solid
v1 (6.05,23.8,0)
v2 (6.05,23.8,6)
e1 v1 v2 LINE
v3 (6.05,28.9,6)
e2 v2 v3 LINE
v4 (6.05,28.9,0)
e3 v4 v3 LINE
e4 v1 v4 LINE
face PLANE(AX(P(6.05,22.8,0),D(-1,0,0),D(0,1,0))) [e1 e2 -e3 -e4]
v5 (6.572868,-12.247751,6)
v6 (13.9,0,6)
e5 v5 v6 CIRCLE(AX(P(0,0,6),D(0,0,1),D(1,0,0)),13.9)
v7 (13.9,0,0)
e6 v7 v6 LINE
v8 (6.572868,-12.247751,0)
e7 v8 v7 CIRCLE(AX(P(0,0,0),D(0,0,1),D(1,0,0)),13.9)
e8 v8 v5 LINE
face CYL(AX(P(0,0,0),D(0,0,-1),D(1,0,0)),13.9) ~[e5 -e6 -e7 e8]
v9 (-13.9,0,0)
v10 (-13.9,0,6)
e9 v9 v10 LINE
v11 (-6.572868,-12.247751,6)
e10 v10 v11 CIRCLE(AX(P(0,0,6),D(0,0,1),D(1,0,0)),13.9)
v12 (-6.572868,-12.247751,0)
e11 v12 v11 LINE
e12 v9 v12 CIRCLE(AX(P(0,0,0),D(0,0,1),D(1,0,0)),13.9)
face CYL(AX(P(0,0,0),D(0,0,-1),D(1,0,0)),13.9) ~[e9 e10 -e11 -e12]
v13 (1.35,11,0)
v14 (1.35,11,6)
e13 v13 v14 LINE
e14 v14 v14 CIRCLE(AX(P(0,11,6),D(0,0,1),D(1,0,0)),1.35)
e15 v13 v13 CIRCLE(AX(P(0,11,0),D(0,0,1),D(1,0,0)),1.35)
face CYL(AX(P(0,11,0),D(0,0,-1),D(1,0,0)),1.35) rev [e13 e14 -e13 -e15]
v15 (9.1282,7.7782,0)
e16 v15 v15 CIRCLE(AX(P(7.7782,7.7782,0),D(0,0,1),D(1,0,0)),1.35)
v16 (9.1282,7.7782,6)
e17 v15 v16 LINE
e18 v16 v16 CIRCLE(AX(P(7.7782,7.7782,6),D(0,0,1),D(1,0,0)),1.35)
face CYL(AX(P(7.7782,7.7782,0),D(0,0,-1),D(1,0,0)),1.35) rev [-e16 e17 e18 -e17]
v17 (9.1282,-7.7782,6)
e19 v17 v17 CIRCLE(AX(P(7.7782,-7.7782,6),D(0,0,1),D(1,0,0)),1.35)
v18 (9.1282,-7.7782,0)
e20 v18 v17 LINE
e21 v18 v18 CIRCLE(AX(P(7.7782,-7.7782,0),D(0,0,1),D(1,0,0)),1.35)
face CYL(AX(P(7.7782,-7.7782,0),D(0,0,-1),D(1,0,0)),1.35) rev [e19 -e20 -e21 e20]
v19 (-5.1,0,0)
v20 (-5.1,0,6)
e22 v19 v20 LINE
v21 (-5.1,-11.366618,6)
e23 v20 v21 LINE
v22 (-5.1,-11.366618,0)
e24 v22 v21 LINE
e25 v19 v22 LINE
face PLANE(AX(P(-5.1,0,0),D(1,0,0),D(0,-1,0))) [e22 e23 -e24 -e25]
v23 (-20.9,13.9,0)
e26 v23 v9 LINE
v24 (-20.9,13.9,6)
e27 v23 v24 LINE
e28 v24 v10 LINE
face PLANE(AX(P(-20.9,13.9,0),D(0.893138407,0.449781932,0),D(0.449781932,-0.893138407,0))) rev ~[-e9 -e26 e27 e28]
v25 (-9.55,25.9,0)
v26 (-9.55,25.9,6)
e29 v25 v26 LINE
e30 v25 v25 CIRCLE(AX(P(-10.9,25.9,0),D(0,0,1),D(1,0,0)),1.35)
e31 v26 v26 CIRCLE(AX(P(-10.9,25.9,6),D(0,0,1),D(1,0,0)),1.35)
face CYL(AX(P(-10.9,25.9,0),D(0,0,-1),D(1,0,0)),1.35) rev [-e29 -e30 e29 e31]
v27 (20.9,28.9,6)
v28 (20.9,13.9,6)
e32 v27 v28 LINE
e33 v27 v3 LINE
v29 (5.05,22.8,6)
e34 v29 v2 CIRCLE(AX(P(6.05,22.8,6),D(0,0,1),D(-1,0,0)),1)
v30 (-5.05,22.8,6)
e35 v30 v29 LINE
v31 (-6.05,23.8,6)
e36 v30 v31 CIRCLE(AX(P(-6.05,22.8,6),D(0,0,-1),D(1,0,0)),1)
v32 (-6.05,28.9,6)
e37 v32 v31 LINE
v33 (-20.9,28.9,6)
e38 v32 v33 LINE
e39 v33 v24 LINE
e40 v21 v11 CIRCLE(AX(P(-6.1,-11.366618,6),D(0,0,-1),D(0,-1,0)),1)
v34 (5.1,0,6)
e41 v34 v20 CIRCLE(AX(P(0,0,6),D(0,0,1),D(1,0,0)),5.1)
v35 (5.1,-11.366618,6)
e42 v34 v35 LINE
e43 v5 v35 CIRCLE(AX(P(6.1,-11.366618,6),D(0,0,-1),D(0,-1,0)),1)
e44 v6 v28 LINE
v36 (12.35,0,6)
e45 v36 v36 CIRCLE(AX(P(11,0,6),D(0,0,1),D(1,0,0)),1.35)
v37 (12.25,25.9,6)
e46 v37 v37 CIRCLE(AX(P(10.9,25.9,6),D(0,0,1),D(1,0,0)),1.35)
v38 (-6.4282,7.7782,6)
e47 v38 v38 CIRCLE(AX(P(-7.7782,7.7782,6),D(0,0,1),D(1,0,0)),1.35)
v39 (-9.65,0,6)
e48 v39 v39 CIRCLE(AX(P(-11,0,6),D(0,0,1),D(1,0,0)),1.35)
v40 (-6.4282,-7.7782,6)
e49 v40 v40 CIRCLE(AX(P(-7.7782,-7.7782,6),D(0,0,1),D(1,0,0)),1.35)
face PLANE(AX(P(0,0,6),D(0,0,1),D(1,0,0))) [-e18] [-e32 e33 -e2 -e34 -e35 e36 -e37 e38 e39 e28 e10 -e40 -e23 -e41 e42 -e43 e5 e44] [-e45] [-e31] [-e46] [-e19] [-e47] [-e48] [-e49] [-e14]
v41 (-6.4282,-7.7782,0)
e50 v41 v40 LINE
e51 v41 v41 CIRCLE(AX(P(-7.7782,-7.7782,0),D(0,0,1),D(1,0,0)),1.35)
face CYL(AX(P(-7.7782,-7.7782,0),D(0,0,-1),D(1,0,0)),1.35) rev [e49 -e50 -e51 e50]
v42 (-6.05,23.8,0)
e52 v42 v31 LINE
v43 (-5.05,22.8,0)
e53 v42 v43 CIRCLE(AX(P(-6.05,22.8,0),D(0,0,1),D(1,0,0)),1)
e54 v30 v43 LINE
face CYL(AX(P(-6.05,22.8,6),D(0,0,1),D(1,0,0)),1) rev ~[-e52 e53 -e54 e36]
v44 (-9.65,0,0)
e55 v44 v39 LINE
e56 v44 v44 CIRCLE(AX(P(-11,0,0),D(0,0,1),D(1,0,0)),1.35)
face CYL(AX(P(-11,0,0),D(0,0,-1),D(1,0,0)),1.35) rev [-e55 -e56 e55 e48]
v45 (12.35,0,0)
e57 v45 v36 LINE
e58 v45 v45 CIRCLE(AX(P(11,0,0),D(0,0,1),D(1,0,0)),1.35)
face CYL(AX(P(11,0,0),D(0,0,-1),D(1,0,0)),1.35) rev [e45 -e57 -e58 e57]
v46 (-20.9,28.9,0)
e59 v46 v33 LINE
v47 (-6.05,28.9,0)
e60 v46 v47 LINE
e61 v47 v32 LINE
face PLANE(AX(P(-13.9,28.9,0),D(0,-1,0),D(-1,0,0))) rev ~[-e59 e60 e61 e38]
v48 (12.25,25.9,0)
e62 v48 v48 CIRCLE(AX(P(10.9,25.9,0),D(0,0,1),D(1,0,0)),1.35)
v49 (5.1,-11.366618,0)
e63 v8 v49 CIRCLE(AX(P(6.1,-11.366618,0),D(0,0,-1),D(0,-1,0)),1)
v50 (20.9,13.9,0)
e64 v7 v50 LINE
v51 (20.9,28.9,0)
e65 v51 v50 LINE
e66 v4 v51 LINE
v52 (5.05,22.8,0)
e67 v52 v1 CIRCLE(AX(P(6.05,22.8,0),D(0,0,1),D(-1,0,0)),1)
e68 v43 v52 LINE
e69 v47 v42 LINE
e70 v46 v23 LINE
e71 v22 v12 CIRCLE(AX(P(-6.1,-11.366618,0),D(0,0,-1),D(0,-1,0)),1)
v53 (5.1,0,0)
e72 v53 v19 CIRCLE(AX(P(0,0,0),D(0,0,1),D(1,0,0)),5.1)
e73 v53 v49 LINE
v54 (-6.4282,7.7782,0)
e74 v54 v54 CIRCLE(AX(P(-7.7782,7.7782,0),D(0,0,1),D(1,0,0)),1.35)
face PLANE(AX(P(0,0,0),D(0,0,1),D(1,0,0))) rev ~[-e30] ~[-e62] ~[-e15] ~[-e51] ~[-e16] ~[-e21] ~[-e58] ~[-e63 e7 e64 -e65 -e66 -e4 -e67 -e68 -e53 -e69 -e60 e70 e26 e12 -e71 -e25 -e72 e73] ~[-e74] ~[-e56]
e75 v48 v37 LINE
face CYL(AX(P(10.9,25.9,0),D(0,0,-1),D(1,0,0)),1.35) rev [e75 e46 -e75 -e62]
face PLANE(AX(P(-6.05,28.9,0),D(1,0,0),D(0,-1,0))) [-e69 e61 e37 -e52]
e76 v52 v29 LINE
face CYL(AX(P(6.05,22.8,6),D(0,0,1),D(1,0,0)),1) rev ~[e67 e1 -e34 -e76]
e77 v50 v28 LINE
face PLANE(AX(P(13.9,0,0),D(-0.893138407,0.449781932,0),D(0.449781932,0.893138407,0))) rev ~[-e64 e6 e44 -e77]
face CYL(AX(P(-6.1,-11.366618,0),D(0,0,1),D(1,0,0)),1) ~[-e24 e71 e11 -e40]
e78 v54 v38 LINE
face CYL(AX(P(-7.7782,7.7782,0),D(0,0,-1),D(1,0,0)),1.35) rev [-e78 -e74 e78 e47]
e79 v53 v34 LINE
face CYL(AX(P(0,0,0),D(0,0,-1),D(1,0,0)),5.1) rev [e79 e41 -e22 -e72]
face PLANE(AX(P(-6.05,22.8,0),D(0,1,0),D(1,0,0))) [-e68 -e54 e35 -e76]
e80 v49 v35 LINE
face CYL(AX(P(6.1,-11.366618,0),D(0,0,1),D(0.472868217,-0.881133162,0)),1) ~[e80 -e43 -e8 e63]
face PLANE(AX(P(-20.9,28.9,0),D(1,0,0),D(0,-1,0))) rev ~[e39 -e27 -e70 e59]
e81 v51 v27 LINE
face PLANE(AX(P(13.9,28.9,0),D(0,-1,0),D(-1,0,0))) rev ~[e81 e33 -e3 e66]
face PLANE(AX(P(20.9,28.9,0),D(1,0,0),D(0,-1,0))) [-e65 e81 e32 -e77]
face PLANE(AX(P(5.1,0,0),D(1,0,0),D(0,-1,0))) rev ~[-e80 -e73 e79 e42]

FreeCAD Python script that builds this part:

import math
import FreeCAD as App
import Part
import Sketcher
Q = App.Units.Quantity


def edges_at(feature, points):
    """Names of the edges that pass closest to the given points."""
    edges = feature.Shape.Edges
    near = lambda p: min(range(len(edges)), key=lambda i: edges[i].distToShape(Part.Vertex(*p))[0])
    return sorted({f"Edge{near(p) + 1}" for p in points})

doc = App.newDocument("Part")
body = doc.addObject("PartDesign::Body", "Body")

# Sketch on XY plane
sketch1 = body.newObject("Sketcher::SketchObject", "Sketch")
sketch1.AttachmentSupport = (doc.getObject("XY_Plane"), [""])
sketch1.MapMode = "FlatFace"
sketch1.addGeometry([
    Part.ArcOfCircle(Part.Circle(App.Vector(0, 0, 0), App.Vector(0, 0, 1), 13.9), math.radians(-68), math.radians(0)),  # 0
    Part.LineSegment(App.Vector(13.9, 0, 0), App.Vector(20.9, 13.9, 0)),  # 1
    Part.LineSegment(App.Vector(20.9, 13.9, 0), App.Vector(20.9, 28.9, 0)),  # 2
    Part.LineSegment(App.Vector(20.9, 28.9, 0), App.Vector(6, 28.9, 0)),  # 3
    Part.LineSegment(App.Vector(6, 28.9, 0), App.Vector(6, 22.8, 0)),  # 4
    Part.LineSegment(App.Vector(6, 22.8, 0), App.Vector(-6, 22.8, 0)),  # 5
    Part.LineSegment(App.Vector(-6, 22.8, 0), App.Vector(-6, 28.9, 0)),  # 6
    Part.LineSegment(App.Vector(-6, 28.9, 0), App.Vector(-20.9, 28.9, 0)),  # 7
    Part.LineSegment(App.Vector(-20.9, 28.9, 0), App.Vector(-20.9, 13.9, 0)),  # 8
    Part.LineSegment(App.Vector(-20.9, 13.9, 0), App.Vector(-13.9, 0, 0)),  # 9
    Part.ArcOfCircle(Part.Circle(App.Vector(0, 0, 0), App.Vector(0, 0, 1), 13.9), math.radians(180), math.radians(248)),  # 10
    Part.LineSegment(App.Vector(-5.1, -12.9, 0), App.Vector(-5.1, 0, 0)),  # 11
    Part.ArcOfCircle(Part.Circle(App.Vector(0, 0, 0), App.Vector(0, 0, 1), 5.1), math.radians(0), math.radians(180)),  # 12
    Part.LineSegment(App.Vector(5.1, 0, 0), App.Vector(5.1, -12.9, 0)),  # 13
    Part.Circle(App.Vector(-7.8, -7.8, 0), App.Vector(0, 0, 1), 1.4),  # 14
    Part.Circle(App.Vector(7.8, 7.8, 0), App.Vector(0, 0, 1), 1.4),  # 15
    Part.Circle(App.Vector(-11, 0, 0), App.Vector(0, 0, 1), 1.4),  # 16
    Part.Circle(App.Vector(7.8, -7.8, 0), App.Vector(0, 0, 1), 1.4),  # 17
    Part.Circle(App.Vector(11, 0, 0), App.Vector(0, 0, 1), 1.4),  # 18
    Part.Circle(App.Vector(-7.8, 7.8, 0), App.Vector(0, 0, 1), 1.4),  # 19
    Part.Circle(App.Vector(0, 11, 0), App.Vector(0, 0, 1), 1.4),  # 20
    Part.Circle(App.Vector(-10.9, 25.9, 0), App.Vector(0, 0, 1), 1.4),  # 21
    Part.Circle(App.Vector(10.9, 25.9, 0), App.Vector(0, 0, 1), 1.4),  # 22
], False)
sketch1.addConstraint([
    Sketcher.Constraint("Coincident", 0, 2, 1, 1),
    Sketcher.Constraint("Coincident", 1, 2, 2, 1),
    Sketcher.Constraint("Coincident", 2, 2, 3, 1),
    Sketcher.Constraint("Coincident", 3, 2, 4, 1),
    Sketcher.Constraint("Coincident", 4, 2, 5, 1),
    Sketcher.Constraint("Coincident", 5, 2, 6, 1),
    Sketcher.Constraint("Coincident", 6, 2, 7, 1),
    Sketcher.Constraint("Coincident", 7, 2, 8, 1),
    Sketcher.Constraint("Coincident", 8, 2, 9, 1),
    Sketcher.Constraint("Coincident", 9, 2, 10, 1),
    Sketcher.Constraint("Coincident", 10, 2, 11, 1),
    Sketcher.Constraint("Tangent", 11, 2, 12, 2),
    Sketcher.Constraint("Tangent", 12, 1, 13, 1),
    Sketcher.Constraint("Coincident", 13, 2, 0, 1),
    Sketcher.Constraint("Vertical", 2),
    Sketcher.Constraint("Horizontal", 3),
    Sketcher.Constraint("Vertical", 4),
    Sketcher.Constraint("Horizontal", 5),
    Sketcher.Constraint("Vertical", 6),
    Sketcher.Constraint("Horizontal", 7),
    Sketcher.Constraint("Vertical", 8),
    Sketcher.Constraint("Vertical", 11),
    Sketcher.Constraint("Vertical", 13),
    Sketcher.Constraint("Coincident", 0, 3, -1, 1),
    Sketcher.Constraint("Coincident", 10, 3, -1, 1),
    Sketcher.Constraint("Coincident", 12, 3, -1, 1),
    Sketcher.Constraint("Equal", 0, 10),
    Sketcher.Constraint("Equal", 14, 15),
    Sketcher.Constraint("Equal", 15, 16),
    Sketcher.Constraint("Equal", 16, 17),
    Sketcher.Constraint("Equal", 17, 18),
    Sketcher.Constraint("Equal", 18, 19),
    Sketcher.Constraint("Equal", 19, 20),
    Sketcher.Constraint("Equal", 20, 21),
    Sketcher.Constraint("Equal", 21, 22),
    Sketcher.Constraint("Symmetric", 14, 3, 15, 3, -1, 1),
    Sketcher.Constraint("Symmetric", 16, 3, 18, 3, -1, 1),
    Sketcher.Constraint("Symmetric", 17, 3, 19, 3, -1, 1),
    Sketcher.Constraint("Symmetric", 14, 3, 17, 3, -2),
    Sketcher.Constraint("Symmetric", 21, 3, 22, 3, -2),
    Sketcher.Constraint("Symmetric", 3, 2, 6, 2, -2),
    Sketcher.Constraint("Symmetric", 1, 2, 8, 2, -2),
    Sketcher.Constraint("PointOnObject", 16, 3, -1),
    Sketcher.Constraint("PointOnObject", 20, 3, -2),
    Sketcher.Constraint("PointOnObject", 0, 2, -1),
    Sketcher.Constraint("PointOnObject", 9, 2, -1),
    Sketcher.Constraint("Diameter", 14, Q("2.7 mm")),
    Sketcher.Constraint("DistanceX", 5, 2, 5, 1, Q("12.1 mm")),
    Sketcher.Constraint("DistanceY", 4, 2, 4, 1, Q("6.1 mm")),
    Sketcher.Constraint("Radius", 0, Q("13.9 mm")),
    Sketcher.Constraint("Radius", 12, Q("5.1 mm")),
    Sketcher.Constraint("DistanceX", 16, 3, 21, 3, Q("0.1 mm")),
    Sketcher.Constraint("DistanceY", 2, 1, 2, 2, Q("15 mm")),
    Sketcher.Constraint("DistanceX", 16, 3, -1, 1, Q("11 mm")),
    Sketcher.Constraint("DistanceY", -1, 1, 20, 3, Q("11 mm")),
    Sketcher.Constraint("DistanceX", 0, 2, 1, 2, Q("7 mm")),
    Sketcher.Constraint("DistanceY", 1, 2, 22, 3, Q("12 mm")),
    Sketcher.Constraint("DistanceY", -1, 1, 21, 3, Q("25.9 mm")),
    Sketcher.Constraint("DistanceX", 14, 3, -1, 1, Q("7.7782 mm")),
    Sketcher.Constraint("DistanceY", 14, 3, -1, 1, Q("7.7782 mm")),
])
pad1 = body.newObject("PartDesign::Pad", "Pad")
pad1.Profile = sketch1
pad1.Length = 6
doc.recompute()

fillet = body.newObject("PartDesign::Fillet", "Fillet")
fillet.Base = (pad1, edges_at(pad1, [(-5.1, -12.931, 3), (5.1, -12.931, 3)]))
fillet.Radius = 1

# Sketch on XY plane
sketch2 = body.newObject("Sketcher::SketchObject", "Sketch001")
sketch2.AttachmentSupport = (doc.getObject("XY_Plane"), [""])
sketch2.MapMode = "FlatFace"
sketch2.AttachmentOffset = App.Placement(App.Vector(0, 0, 6), App.Rotation())
sketch2.addGeometry([
    Part.Circle(App.Vector(-6, 22.8, 0), App.Vector(0, 0, 1), 1),
    Part.Circle(App.Vector(6, 22.8, 0), App.Vector(0, 0, 1), 1),
], False)
sketch2.addConstraint([
    Sketcher.Constraint("Equal", 0, 1),
    Sketcher.Constraint("Symmetric", 0, 3, 1, 3, -2),
    Sketcher.Constraint("Diameter", 0, Q("2 mm")),
    Sketcher.Constraint("DistanceY", -1, 1, 0, 3, Q("22.8 mm")),
    Sketcher.Constraint("DistanceX", 0, 3, 1, 3, Q("12.1 mm")),
])
pocket1 = body.newObject("PartDesign::Pocket", "Pocket")
pocket1.Profile = sketch2
pocket1.Length = 10

doc.recompute()
